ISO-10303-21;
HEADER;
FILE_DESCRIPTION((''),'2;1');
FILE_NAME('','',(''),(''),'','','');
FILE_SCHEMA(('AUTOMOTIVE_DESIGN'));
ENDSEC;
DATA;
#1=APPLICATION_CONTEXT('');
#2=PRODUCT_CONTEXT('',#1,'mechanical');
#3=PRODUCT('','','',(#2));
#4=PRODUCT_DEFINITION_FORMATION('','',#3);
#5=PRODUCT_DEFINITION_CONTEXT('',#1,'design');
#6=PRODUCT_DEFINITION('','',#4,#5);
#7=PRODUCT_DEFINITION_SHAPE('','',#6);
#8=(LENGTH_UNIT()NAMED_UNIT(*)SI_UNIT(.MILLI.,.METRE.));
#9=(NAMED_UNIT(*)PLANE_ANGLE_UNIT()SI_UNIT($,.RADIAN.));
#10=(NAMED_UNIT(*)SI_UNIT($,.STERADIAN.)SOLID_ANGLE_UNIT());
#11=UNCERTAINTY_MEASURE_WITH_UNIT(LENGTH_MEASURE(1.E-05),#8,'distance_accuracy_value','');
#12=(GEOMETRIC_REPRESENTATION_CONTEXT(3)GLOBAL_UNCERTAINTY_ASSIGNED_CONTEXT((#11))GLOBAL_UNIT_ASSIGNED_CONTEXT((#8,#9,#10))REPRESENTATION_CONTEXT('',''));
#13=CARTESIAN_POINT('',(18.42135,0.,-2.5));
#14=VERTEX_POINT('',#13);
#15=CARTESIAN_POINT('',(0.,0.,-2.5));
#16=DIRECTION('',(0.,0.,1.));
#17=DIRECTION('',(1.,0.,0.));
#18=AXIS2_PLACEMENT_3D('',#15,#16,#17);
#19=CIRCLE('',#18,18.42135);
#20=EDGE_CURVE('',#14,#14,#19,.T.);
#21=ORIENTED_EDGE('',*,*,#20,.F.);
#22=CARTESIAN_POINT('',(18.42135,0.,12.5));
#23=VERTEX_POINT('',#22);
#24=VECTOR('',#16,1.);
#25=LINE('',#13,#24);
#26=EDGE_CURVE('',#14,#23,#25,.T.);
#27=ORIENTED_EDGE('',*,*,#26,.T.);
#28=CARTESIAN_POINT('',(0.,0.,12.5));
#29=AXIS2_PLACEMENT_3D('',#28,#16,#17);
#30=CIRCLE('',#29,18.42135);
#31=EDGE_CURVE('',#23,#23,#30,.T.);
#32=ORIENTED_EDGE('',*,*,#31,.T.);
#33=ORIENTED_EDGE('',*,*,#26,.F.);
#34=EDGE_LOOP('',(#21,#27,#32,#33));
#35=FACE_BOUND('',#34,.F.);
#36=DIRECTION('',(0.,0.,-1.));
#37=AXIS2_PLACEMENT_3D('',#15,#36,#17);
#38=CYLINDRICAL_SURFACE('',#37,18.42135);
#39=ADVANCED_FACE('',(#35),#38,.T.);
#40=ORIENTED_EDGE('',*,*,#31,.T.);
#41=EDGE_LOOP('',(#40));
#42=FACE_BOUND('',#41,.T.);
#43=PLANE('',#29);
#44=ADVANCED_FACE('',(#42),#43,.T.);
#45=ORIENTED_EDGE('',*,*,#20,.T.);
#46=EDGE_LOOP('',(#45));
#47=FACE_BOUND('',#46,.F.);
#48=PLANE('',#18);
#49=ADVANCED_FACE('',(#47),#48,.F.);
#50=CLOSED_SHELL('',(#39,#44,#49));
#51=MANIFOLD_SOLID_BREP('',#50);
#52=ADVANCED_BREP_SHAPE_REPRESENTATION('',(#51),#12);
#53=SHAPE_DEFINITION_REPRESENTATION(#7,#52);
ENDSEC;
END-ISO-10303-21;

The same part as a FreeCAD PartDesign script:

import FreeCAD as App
import Part
import Sketcher

V = App.Vector

doc = App.newDocument("Part")
body = doc.addObject("PartDesign::Body", "Body")

sketch1 = body.newObject("Sketcher::SketchObject", "Sketch")
sketch1.AttachmentSupport = (doc.getObject("XY_Plane"), [""])
sketch1.MapMode = "FlatFace"
sketch1.AttachmentOffset = App.Placement(V(0, 0, -2.5), App.Rotation())
sketch1.addGeometry(Part.Circle(V(0, 0, 0), V(0, 0, 1), 18), False)
sketch1.addConstraint([
    Sketcher.Constraint("Coincident", 0, 3, -1, 1),
    Sketcher.Constraint("Diameter", 0, 36.8427),
])
pad1 = body.newObject("PartDesign::Pad", "Pad")
pad1.Profile = sketch1
pad1.Length = 15

doc.recompute()
